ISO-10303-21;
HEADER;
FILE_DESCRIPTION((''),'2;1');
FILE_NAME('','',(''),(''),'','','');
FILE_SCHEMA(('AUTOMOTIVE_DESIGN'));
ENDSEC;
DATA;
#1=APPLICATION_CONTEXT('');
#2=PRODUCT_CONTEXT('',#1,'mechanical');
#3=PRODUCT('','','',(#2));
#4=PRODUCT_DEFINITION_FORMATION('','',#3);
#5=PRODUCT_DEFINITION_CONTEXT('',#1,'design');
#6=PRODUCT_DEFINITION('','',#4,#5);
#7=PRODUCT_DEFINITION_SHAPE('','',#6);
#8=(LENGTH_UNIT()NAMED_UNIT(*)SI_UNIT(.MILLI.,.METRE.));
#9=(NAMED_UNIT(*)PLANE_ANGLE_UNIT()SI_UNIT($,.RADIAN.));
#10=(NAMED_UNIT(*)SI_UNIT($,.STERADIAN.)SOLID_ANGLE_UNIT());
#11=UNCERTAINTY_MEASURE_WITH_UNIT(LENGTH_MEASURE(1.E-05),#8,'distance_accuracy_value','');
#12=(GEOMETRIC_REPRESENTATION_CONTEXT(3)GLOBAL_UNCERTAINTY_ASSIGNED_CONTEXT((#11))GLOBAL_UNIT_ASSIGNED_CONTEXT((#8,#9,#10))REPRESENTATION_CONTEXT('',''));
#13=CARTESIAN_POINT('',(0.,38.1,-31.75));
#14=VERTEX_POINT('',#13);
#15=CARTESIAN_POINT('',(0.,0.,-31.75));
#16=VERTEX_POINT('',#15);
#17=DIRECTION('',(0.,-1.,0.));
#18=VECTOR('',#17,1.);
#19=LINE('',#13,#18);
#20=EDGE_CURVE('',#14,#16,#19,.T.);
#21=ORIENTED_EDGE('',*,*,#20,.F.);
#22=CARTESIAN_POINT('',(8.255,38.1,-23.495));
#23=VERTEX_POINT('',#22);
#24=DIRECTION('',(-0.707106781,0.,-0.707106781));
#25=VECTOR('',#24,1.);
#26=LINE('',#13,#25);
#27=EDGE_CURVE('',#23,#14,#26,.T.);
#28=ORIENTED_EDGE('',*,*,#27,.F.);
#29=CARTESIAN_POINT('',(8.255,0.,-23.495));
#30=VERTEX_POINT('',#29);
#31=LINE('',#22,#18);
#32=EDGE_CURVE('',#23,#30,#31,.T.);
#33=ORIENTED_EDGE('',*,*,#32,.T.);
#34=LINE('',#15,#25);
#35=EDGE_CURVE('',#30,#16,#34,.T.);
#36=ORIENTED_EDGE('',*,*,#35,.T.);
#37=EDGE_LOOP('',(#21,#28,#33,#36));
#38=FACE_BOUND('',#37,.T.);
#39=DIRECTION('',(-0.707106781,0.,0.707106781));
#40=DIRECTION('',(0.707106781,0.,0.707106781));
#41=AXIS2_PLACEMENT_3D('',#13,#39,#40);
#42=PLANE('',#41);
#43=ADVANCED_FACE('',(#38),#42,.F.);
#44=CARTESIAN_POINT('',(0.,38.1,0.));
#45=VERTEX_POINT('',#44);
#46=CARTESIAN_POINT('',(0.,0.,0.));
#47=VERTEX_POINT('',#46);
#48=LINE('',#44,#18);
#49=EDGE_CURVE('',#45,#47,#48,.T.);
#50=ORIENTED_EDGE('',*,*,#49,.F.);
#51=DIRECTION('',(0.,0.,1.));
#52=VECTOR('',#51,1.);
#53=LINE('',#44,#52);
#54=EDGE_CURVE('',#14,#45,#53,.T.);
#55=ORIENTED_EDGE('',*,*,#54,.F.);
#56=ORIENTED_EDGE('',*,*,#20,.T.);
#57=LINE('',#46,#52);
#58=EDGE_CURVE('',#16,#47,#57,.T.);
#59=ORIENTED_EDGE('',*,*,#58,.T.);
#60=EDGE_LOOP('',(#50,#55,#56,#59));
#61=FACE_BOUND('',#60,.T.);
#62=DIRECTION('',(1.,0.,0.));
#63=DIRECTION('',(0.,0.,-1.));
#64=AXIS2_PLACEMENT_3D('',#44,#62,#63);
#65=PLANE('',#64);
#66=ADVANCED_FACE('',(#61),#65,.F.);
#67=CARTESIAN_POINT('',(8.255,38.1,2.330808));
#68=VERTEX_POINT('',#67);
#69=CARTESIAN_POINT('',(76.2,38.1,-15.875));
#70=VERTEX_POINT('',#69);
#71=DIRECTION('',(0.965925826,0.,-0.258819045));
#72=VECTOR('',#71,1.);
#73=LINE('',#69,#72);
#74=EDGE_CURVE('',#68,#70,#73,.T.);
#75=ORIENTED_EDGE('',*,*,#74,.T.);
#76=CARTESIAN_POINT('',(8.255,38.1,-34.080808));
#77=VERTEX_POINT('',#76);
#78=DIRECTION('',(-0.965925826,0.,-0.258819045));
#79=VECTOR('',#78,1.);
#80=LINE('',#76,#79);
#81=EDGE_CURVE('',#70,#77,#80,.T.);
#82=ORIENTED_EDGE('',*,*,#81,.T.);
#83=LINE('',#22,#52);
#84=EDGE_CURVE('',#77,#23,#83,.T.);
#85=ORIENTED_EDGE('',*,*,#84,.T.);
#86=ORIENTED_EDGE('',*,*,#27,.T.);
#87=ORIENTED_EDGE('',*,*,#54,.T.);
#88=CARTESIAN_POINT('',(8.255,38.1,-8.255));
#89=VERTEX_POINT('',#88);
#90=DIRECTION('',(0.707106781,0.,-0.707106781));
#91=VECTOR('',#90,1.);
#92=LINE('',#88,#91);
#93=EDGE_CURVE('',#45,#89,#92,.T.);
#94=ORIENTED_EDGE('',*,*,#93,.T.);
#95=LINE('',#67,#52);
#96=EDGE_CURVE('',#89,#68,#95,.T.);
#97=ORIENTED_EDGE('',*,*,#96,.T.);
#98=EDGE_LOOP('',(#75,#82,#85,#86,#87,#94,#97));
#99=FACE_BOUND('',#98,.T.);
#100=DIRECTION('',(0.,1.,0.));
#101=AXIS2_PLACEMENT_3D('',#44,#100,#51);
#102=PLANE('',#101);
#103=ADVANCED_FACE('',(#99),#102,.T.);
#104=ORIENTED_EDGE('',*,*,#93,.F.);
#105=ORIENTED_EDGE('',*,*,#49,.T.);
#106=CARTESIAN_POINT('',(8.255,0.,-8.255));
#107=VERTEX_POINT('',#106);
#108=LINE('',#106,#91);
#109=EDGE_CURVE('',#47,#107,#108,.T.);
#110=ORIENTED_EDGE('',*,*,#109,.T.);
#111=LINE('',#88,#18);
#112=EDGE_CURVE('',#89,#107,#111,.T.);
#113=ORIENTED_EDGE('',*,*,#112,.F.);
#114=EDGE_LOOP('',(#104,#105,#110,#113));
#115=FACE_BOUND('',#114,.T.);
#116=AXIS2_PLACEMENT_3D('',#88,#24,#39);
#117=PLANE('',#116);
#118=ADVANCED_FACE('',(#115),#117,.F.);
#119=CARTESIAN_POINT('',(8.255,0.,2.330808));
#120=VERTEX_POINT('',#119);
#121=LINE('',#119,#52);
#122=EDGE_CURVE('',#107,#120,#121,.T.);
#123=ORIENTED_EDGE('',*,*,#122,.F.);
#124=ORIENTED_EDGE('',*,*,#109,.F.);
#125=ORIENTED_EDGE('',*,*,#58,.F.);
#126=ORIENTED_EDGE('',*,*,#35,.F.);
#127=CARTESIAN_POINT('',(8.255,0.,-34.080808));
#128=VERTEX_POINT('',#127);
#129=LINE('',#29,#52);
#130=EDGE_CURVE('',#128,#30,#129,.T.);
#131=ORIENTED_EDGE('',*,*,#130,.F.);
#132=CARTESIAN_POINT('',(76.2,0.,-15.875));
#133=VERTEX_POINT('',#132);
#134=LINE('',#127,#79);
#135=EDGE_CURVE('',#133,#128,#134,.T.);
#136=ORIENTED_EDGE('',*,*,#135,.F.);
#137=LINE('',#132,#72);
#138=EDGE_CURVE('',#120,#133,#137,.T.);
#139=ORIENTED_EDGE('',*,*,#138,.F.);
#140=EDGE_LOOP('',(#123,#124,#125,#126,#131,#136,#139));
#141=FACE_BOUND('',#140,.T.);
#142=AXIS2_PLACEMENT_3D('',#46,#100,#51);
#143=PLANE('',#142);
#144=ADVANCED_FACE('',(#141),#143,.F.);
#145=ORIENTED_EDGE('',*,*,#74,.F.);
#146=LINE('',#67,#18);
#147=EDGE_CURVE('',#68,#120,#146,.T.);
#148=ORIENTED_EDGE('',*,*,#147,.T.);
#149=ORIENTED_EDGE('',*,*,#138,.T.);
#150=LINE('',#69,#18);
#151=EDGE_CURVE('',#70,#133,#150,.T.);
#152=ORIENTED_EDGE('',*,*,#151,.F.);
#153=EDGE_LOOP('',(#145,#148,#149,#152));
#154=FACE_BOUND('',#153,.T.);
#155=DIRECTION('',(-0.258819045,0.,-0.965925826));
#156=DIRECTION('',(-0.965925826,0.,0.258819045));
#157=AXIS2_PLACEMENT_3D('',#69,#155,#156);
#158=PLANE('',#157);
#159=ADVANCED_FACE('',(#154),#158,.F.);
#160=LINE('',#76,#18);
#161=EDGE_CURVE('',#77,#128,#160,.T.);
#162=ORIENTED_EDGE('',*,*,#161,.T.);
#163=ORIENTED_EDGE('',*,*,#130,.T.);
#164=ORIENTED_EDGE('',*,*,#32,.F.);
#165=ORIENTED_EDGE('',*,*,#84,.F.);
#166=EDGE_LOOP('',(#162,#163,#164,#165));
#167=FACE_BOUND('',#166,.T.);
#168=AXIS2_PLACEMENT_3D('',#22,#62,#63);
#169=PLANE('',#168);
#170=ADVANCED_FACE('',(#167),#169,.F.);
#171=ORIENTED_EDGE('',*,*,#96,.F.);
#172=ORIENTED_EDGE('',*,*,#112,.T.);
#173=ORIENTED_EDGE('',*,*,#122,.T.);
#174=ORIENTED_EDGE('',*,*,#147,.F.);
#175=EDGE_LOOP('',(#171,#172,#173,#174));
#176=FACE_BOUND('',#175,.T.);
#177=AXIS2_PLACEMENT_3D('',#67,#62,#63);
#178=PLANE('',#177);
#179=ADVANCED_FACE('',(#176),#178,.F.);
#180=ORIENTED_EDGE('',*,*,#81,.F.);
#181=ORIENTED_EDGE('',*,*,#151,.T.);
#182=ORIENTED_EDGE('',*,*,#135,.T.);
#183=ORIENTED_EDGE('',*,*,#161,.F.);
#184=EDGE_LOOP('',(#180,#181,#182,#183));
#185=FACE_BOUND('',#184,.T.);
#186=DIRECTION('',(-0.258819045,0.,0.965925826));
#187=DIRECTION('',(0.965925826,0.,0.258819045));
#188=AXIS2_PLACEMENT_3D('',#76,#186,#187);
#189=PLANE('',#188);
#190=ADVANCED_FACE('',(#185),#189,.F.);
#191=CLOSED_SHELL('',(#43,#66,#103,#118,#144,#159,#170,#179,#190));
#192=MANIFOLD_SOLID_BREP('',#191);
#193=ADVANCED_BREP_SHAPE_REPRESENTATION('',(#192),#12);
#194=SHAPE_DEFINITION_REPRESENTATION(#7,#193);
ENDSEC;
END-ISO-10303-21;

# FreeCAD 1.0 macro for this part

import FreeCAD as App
import Part
import Sketcher
from FreeCAD import Vector
Q = App.Units.Quantity

doc = App.newDocument("Part")
params = doc.addObject("Spreadsheet::Sheet", "Params")
for row, (alias, value) in enumerate([
    ("sketch1_height", "1.25 in"),
    ("pad1_length", "1.5 in"),
], start=1):
    params.set(f"A{row}", alias)
    params.set(f"B{row}", "=" + value)
    params.setAlias(f"B{row}", alias)

body = doc.addObject("PartDesign::Body", "Body")

# Sketch on XZ plane
sketch1 = body.newObject("Sketcher::SketchObject", "Sketch")
sketch1.AttachmentSupport = (doc.getObject("XZ_Plane"), [""])
sketch1.MapMode = "FlatFace"
sketch1.addGeometry(Part.LineSegment(Vector(0, -32, 0), Vector(0, 0, 0)), False)
sketch1.addGeometry(Part.LineSegment(Vector(0, 0, 0), Vector(8, -8, 0)), False)
sketch1.addGeometry(Part.LineSegment(Vector(8, -8, 0), Vector(8, 2, 0)), False)
sketch1.addGeometry(Part.LineSegment(Vector(8, 2, 0), Vector(76, -16, 0)), False)
sketch1.addGeometry(Part.LineSegment(Vector(76, -16, 0), Vector(8, -34, 0)), False)
sketch1.addGeometry(Part.LineSegment(Vector(8, -34, 0), Vector(8, -23, 0)), False)
sketch1.addGeometry(Part.LineSegment(Vector(8, -23, 0), Vector(0, -32, 0)), False)
sketch1.addConstraint(Sketcher.Constraint("Coincident", 0, 2, 1, 1))
sketch1.addConstraint(Sketcher.Constraint("Coincident", 1, 2, 2, 1))
sketch1.addConstraint(Sketcher.Constraint("Coincident", 2, 2, 3, 1))
sketch1.addConstraint(Sketcher.Constraint("Coincident", 3, 2, 4, 1))
sketch1.addConstraint(Sketcher.Constraint("Coincident", 4, 2, 5, 1))
sketch1.addConstraint(Sketcher.Constraint("Coincident", 5, 2, 6, 1))
sketch1.addConstraint(Sketcher.Constraint("Coincident", 6, 2, 0, 1))
sketch1.addConstraint(Sketcher.Constraint("Vertical", 0))
sketch1.addConstraint(Sketcher.Constraint("Vertical", 2))
sketch1.addConstraint(Sketcher.Constraint("Vertical", 5))
sketch1.addConstraint(Sketcher.Constraint("Coincident", 0, 2, -1, 1))
sketch1.addConstraint(Sketcher.Constraint("Perpendicular", 1, 6))
sketch1.addConstraint(Sketcher.Constraint("Vertical", 2, 2, 4, 2))
sketch1.addConstraint(Sketcher.Constraint("Equal", 2, 5))
sketch1.addConstraint(Sketcher.Constraint("Equal", 3, 4))
sketch1.addConstraint(Sketcher.Constraint("Equal", 1, 6))
sketch1.addConstraint(Sketcher.Constraint("DistanceX", -1, 1, 3, 2, Q("3 in")))
sketch1.addConstraint(Sketcher.Constraint("Angle", 3, Q("-15 deg")))
sketch1.addConstraint(Sketcher.Constraint("DistanceY", 0, 1, 0, 2, Q("1.25 in")))
sketch1.addConstraint(Sketcher.Constraint("DistanceY", 3, 2, 1, 2, Q("0.3 in")))
sketch1.setExpression("Constraints[18]", "Params.sketch1_height")
pad1 = body.newObject("PartDesign::Pad", "Pad")
pad1.Profile = sketch1
pad1.setExpression("Length", "Params.pad1_length")
pad1.Reversed = True

doc.recompute()
